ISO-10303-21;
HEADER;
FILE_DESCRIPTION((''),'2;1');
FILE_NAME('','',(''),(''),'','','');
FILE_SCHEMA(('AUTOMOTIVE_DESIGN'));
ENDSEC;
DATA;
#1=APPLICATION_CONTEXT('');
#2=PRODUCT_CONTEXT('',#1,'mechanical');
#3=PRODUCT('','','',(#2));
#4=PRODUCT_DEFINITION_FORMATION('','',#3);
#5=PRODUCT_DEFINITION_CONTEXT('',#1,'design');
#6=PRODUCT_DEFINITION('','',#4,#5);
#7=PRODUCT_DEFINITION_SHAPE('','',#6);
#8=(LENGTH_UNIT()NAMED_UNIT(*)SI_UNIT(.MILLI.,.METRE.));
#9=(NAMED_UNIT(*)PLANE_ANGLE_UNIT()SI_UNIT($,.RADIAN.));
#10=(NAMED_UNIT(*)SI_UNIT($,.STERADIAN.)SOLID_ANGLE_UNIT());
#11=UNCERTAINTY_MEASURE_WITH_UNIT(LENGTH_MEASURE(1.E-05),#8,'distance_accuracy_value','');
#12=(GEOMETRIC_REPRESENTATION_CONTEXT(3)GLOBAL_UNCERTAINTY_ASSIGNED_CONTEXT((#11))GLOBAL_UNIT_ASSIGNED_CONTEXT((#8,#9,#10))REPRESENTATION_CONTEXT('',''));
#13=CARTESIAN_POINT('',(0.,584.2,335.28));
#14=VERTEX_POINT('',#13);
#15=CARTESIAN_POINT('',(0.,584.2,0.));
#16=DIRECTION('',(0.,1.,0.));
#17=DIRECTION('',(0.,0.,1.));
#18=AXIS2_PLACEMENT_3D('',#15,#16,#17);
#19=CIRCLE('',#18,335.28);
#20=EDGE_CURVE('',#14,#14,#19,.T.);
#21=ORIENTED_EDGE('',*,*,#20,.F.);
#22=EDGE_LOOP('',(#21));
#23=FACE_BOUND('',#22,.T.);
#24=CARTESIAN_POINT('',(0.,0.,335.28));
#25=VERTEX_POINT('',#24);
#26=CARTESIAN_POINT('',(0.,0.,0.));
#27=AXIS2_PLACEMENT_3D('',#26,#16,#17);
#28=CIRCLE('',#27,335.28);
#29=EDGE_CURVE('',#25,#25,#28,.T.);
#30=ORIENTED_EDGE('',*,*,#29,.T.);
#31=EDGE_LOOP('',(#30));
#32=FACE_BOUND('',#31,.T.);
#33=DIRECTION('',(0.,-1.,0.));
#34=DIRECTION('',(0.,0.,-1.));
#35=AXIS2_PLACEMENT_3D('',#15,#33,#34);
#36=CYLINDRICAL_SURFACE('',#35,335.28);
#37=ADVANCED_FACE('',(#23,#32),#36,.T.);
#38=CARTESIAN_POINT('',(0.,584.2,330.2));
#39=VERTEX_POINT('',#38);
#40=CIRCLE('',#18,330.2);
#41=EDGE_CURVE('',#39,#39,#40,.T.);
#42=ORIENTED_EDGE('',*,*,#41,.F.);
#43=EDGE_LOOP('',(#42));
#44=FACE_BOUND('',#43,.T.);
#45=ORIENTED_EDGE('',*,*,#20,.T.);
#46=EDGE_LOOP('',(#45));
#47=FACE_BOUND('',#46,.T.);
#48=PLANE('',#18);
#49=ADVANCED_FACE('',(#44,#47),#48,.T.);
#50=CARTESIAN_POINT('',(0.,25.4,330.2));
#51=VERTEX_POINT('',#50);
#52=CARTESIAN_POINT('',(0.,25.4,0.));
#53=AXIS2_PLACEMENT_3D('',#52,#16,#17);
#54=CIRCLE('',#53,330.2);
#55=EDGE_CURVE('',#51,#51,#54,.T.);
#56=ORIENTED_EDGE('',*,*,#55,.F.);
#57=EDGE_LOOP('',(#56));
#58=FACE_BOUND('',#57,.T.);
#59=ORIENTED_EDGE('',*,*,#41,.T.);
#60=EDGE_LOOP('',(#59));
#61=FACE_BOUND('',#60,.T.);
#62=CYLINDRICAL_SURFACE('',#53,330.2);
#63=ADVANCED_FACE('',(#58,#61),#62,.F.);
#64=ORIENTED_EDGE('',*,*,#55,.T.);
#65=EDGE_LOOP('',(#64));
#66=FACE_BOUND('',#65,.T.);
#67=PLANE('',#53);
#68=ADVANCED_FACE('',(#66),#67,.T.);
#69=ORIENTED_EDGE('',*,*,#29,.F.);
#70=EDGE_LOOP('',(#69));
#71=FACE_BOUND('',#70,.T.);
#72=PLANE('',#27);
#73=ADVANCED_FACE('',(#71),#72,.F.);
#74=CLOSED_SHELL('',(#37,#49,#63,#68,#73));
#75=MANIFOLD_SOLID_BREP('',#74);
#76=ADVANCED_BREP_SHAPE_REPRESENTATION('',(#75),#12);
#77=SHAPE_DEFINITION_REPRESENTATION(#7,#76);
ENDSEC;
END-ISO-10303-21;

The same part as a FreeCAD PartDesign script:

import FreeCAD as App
import Part
import Sketcher

V = App.Vector
Q = App.Units.Quantity

doc = App.newDocument("Part")
body = doc.addObject("PartDesign::Body", "Body")

sketch1 = doc.addObject("Sketcher::SketchObject", "Sketch")
body.addObject(sketch1)
sketch1.AttachmentSupport = (doc.XZ_Plane, [""])
sketch1.MapMode = "FlatFace"
sketch1.addGeometry(Part.Circle(V(0, 0, 0), V(0, 0, 1), 335.28), False)
sketch1.addConstraint(Sketcher.Constraint("Coincident", 0, 3, -1, 1))
sketch1.addConstraint(Sketcher.Constraint("Diameter", 0, Q("26.4 in")))
pad1 = doc.addObject("PartDesign::Pad", "Pad")
body.addObject(pad1)
pad1.Profile = sketch1
pad1.Length = Q("23 in")
pad1.Reversed = True

sketch2 = doc.addObject("Sketcher::SketchObject", "Sketch001")
body.addObject(sketch2)
sketch2.AttachmentSupport = (doc.XZ_Plane, [""])
sketch2.MapMode = "FlatFace"
sketch2.AttachmentOffset = App.Placement(V(0, 0, -23 * 25.4), App.Rotation())
sketch2.addGeometry(Part.Circle(V(0, 0, 0), V(0, 0, 1), 330.2), False)
sketch2.addConstraint(Sketcher.Constraint("Coincident", 0, 3, -1, 1))
sketch2.addConstraint(Sketcher.Constraint("Diameter", 0, Q("26 in")))
pocket1 = doc.addObject("PartDesign::Pocket", "Pocket")
body.addObject(pocket1)
pocket1.Profile = sketch2
pocket1.Length = Q("22 in")
pocket1.Reversed = True

doc.recompute()
